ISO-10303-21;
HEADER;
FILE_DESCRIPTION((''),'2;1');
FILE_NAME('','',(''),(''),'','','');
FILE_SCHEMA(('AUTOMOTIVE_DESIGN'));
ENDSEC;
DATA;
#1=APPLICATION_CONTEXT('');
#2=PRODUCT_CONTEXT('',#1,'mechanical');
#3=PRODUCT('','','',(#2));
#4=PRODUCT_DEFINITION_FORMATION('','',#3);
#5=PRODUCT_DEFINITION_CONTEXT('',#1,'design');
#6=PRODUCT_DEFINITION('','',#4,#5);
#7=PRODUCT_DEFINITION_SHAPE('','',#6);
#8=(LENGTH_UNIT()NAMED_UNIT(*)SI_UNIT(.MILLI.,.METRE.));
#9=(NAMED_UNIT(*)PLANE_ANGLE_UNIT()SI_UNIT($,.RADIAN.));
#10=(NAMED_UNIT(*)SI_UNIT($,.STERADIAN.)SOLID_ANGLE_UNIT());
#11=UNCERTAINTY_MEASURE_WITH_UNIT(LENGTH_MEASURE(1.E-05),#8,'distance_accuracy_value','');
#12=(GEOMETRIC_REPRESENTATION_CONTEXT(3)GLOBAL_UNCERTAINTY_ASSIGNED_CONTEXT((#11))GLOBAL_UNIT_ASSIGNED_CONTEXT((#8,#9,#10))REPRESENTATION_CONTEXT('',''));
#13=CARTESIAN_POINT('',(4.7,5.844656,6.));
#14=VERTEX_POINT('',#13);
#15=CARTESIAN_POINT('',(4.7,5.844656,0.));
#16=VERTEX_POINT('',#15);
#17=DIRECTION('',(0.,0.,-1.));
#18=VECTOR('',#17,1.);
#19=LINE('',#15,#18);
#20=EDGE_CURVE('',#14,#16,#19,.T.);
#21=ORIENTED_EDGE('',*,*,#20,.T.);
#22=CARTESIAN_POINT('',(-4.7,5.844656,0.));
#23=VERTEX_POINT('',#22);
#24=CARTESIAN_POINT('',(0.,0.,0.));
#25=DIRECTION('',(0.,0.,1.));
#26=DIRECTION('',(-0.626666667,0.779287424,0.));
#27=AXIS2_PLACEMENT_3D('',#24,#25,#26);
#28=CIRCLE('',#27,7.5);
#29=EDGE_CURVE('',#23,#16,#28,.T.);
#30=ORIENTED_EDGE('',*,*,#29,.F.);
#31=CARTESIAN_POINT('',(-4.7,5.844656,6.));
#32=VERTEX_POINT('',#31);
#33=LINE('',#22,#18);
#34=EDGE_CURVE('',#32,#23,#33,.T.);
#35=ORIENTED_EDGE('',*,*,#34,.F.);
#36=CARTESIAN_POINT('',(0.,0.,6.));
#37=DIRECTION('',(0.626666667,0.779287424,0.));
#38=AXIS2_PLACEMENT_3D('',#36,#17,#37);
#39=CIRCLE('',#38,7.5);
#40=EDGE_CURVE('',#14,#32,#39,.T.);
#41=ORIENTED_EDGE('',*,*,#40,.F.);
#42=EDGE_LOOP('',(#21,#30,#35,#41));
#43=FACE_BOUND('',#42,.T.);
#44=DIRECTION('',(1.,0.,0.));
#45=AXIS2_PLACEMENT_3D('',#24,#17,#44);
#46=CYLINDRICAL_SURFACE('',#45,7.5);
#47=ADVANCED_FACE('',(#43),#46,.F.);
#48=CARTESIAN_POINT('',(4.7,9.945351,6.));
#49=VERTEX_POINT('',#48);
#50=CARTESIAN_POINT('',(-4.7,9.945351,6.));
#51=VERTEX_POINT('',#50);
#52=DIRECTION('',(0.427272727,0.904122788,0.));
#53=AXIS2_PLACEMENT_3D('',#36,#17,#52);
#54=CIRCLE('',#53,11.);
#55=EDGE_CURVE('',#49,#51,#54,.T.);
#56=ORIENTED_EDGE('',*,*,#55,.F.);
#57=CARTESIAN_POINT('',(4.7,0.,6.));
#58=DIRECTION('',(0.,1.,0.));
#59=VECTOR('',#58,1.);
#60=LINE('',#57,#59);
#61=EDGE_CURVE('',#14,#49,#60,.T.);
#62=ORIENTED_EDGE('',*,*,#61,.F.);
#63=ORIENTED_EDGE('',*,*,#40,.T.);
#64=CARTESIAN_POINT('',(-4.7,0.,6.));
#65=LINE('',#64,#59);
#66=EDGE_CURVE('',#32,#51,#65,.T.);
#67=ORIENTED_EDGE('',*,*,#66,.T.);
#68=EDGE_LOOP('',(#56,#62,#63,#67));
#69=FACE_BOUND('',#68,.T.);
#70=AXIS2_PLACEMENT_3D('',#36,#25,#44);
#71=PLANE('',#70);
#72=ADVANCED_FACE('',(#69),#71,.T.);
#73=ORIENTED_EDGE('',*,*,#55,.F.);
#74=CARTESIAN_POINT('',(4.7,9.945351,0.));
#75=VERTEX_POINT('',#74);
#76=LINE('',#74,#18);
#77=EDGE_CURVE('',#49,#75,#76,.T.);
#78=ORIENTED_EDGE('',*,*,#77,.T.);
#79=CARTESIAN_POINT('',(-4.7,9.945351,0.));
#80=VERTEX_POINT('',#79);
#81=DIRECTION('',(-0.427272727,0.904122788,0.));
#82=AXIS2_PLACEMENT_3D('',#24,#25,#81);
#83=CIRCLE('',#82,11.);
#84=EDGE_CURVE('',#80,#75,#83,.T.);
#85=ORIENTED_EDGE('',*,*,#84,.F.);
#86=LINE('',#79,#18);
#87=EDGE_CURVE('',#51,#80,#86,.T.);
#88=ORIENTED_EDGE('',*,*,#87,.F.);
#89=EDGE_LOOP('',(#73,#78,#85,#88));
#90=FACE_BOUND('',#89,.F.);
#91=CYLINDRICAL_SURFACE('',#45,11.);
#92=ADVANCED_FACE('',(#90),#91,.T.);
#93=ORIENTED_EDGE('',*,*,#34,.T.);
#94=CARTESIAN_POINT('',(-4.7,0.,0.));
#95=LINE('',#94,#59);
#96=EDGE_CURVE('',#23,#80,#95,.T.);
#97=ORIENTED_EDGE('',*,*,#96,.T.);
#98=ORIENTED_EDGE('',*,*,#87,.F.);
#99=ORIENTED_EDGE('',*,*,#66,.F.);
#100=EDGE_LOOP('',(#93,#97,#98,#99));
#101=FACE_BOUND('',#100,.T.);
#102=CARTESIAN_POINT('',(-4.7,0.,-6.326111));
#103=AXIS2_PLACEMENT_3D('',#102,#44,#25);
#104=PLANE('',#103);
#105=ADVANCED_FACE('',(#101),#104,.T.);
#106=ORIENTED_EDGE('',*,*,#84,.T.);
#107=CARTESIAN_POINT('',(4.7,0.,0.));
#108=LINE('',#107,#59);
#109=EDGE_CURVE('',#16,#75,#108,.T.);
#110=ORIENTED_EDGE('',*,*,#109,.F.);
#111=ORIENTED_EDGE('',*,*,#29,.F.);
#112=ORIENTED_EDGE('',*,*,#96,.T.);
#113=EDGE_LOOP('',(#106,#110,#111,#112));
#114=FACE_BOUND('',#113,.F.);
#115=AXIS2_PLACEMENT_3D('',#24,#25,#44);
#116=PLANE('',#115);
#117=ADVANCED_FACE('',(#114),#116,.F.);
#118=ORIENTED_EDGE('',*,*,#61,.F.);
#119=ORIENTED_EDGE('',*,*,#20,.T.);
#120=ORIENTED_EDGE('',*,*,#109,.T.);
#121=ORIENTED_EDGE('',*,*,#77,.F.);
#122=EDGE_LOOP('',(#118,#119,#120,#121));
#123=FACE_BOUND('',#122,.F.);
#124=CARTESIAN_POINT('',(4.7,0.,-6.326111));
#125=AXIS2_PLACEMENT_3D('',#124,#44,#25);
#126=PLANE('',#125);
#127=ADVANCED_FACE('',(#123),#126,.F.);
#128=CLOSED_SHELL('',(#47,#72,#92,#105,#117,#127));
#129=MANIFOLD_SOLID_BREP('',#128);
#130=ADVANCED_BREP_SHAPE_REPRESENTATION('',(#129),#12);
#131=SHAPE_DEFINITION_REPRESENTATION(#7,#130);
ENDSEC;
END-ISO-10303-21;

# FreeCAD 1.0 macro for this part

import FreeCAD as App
import Part
import Sketcher
Q = App.Units.Quantity

doc = App.newDocument("Part")
params = doc.addObject("Spreadsheet::Sheet", "Params")
for row, (alias, value) in enumerate([
    ("sketch1_diameter", "22 mm"),
    ("sketch1_diameter2", "15 mm"),
    ("pad1_length", "6 mm"),
    ("sketch2_width", "9.4 mm"),
    ("pocket1_length", "25 mm"),
], start=1):
    params.set(f"A{row}", alias)
    params.set(f"B{row}", "=" + value)
    params.setAlias(f"B{row}", alias)

body = doc.addObject("PartDesign::Body", "Body")

# Sketch on XY plane
sketch1 = body.newObject("Sketcher::SketchObject", "Sketch")
sketch1.AttachmentSupport = (doc.getObject("XY_Plane"), [""])
sketch1.MapMode = "FlatFace"
sketch1.addGeometry(Part.Circle(App.Vector(0, 0, 0), App.Vector(0, 0, 1), 11), False)
sketch1.addGeometry(Part.Circle(App.Vector(0, 0, 0), App.Vector(0, 0, 1), 8), False)
sketch1.addConstraint(Sketcher.Constraint("Coincident", 0, 3, -1, 1))
sketch1.addConstraint(Sketcher.Constraint("Coincident", 1, 3, -1, 1))
sketch1.addConstraint(Sketcher.Constraint("Diameter", 0, Q("22 mm")))
sketch1.addConstraint(Sketcher.Constraint("Diameter", 1, Q("15 mm")))
sketch1.setExpression("Constraints[2]", "Params.sketch1_diameter")
sketch1.setExpression("Constraints[3]", "Params.sketch1_diameter2")
pad1 = body.newObject("PartDesign::Pad", "Pad")
pad1.Profile = sketch1
pad1.setExpression("Length", "Params.pad1_length")

# Sketch on XZ plane
sketch2 = body.newObject("Sketcher::SketchObject", "Sketch001")
sketch2.AttachmentSupport = (doc.getObject("XZ_Plane"), [""])
sketch2.MapMode = "FlatFace"
sketch2.addGeometry(Part.LineSegment(App.Vector(-5, 14, 0), App.Vector(-5, -6, 0)), False)
sketch2.addGeometry(Part.LineSegment(App.Vector(-5, -6, 0), App.Vector(5, -6, 0)), False)
sketch2.addGeometry(Part.LineSegment(App.Vector(5, -6, 0), App.Vector(5, 14, 0)), False)
sketch2.addGeometry(Part.LineSegment(App.Vector(5, 14, 0), App.Vector(-5, 14, 0)), False)
sketch2.addConstraint(Sketcher.Constraint("Coincident", 0, 2, 1, 1))
sketch2.addConstraint(Sketcher.Constraint("Coincident", 1, 2, 2, 1))
sketch2.addConstraint(Sketcher.Constraint("Coincident", 2, 2, 3, 1))
sketch2.addConstraint(Sketcher.Constraint("Coincident", 3, 2, 0, 1))
sketch2.addConstraint(Sketcher.Constraint("Vertical", 0))
sketch2.addConstraint(Sketcher.Constraint("Horizontal", 1))
sketch2.addConstraint(Sketcher.Constraint("Vertical", 2))
sketch2.addConstraint(Sketcher.Constraint("Horizontal", 3))
sketch2.addConstraint(Sketcher.Constraint("DistanceX", 1, 1, 1, 2, Q("9.4 mm")))
sketch2.addConstraint(Sketcher.Constraint("DistanceX", 0, 2, -1, 1, Q("4.7 mm")))
sketch2.addConstraint(Sketcher.Constraint("DistanceY", 0, 2, 0, 1, Q("20.224782 mm")))
sketch2.addConstraint(Sketcher.Constraint("DistanceY", 0, 2, -1, 1, Q("6.326111 mm")))
sketch2.setExpression("Constraints[8]", "Params.sketch2_width")
pocket1 = body.newObject("PartDesign::Pocket", "Pocket")
pocket1.Profile = sketch2
pocket1.setExpression("Length", "Params.pocket1_length")

doc.recompute()
